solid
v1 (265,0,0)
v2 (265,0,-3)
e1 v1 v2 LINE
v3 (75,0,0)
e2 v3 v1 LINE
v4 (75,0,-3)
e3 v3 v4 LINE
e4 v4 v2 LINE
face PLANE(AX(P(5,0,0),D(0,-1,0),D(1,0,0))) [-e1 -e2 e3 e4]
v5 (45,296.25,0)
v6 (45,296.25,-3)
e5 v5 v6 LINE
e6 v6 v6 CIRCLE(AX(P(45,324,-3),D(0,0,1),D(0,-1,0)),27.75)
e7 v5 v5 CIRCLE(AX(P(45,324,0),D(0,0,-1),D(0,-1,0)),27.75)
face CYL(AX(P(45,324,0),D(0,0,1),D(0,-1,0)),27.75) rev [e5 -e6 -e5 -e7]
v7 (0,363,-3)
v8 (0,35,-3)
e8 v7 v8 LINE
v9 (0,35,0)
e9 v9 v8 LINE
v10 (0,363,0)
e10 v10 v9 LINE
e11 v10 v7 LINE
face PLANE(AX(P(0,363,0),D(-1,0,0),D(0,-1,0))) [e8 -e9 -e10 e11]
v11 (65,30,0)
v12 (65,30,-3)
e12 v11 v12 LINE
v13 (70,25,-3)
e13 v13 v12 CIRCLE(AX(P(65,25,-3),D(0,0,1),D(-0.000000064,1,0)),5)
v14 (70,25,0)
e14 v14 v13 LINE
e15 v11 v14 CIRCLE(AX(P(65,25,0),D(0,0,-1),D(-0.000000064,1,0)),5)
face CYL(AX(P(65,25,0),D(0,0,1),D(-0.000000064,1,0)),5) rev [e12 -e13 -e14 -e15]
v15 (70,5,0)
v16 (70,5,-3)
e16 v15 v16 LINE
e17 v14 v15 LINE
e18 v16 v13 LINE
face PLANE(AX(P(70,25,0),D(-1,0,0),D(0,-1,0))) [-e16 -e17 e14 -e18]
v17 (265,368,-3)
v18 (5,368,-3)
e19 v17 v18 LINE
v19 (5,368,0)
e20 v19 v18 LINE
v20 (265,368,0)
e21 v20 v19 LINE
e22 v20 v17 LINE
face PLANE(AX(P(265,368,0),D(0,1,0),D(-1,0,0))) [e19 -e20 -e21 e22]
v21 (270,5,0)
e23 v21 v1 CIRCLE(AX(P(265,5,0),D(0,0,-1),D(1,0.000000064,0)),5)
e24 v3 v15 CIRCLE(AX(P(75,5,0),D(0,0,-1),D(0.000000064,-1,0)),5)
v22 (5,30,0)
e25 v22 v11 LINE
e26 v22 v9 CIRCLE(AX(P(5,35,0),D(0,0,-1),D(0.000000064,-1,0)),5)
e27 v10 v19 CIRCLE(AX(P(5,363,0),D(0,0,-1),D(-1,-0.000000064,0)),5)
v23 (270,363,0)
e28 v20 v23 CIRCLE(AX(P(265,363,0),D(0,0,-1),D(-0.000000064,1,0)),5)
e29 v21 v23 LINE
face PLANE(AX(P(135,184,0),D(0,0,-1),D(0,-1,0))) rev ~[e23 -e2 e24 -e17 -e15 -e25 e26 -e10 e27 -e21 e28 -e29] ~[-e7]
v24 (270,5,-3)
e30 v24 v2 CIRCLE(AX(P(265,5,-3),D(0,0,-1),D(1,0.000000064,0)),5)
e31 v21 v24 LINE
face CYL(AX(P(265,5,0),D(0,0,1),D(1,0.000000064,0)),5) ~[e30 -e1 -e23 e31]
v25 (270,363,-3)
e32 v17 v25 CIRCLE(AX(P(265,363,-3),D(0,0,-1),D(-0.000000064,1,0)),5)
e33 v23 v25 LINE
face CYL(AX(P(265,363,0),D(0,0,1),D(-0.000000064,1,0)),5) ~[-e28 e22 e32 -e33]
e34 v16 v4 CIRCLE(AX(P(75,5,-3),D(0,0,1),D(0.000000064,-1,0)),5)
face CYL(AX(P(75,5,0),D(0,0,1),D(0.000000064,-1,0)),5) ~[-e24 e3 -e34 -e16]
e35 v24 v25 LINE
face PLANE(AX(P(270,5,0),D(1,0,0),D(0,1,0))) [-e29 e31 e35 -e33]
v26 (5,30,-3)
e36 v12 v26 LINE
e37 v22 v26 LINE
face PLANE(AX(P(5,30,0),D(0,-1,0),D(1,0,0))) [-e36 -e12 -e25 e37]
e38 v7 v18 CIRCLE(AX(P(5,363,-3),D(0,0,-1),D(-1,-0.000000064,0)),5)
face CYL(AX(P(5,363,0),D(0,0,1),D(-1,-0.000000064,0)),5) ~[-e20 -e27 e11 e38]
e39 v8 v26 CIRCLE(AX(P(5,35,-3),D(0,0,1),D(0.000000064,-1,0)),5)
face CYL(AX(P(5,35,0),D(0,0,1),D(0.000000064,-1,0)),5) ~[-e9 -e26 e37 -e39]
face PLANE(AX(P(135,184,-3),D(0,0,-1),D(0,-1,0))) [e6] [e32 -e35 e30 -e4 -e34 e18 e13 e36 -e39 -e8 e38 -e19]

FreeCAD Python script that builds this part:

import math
import FreeCAD as App
import Part
import Sketcher
from FreeCAD import Vector

doc = App.newDocument("Part")
body = doc.addObject("PartDesign::Body", "Body")

# Sketch on XY plane
sketch1 = doc.addObject("Sketcher::SketchObject", "Sketch")
body.addObject(sketch1)
sketch1.AttachmentSupport = (doc.XY_Plane, [""])
sketch1.MapMode = "FlatFace"
sketch1.addGeometry([
    Part.ArcOfCircle(Part.Circle(Vector(-179, -130, 0), Vector(0, 0, 1), 5), math.radians(180), math.radians(270)),  # 0
    Part.LineSegment(Vector(-179, -135, 0), Vector(179, -135, 0)),  # 1
    Part.ArcOfCircle(Part.Circle(Vector(179, -130, 0), Vector(0, 0, 1), 5), math.radians(-90), math.radians(0)),  # 2
    Part.LineSegment(Vector(184, -130, 0), Vector(184, 130, 0)),  # 3
    Part.ArcOfCircle(Part.Circle(Vector(179, 130, 0), Vector(0, 0, 1), 5), math.radians(0), math.radians(90)),  # 4
    Part.LineSegment(Vector(179, 135, 0), Vector(-179, 135, 0)),  # 5
    Part.ArcOfCircle(Part.Circle(Vector(-179, 130, 0), Vector(0, 0, 1), 5), math.radians(90), math.radians(180)),  # 6
    Part.LineSegment(Vector(-184, 130, 0), Vector(-184, -130, 0)),  # 7
], False)
sketch1.addConstraint([
    Sketcher.Constraint("Tangent", 0, 2, 1, 1),
    Sketcher.Constraint("Tangent", 1, 2, 2, 1),
    Sketcher.Constraint("Tangent", 2, 2, 3, 1),
    Sketcher.Constraint("Tangent", 3, 2, 4, 1),
    Sketcher.Constraint("Tangent", 4, 2, 5, 1),
    Sketcher.Constraint("Tangent", 5, 2, 6, 1),
    Sketcher.Constraint("Tangent", 6, 2, 7, 1),
    Sketcher.Constraint("Tangent", 7, 2, 0, 1),
    Sketcher.Constraint("Horizontal", 1),
    Sketcher.Constraint("Vertical", 3),
    Sketcher.Constraint("Horizontal", 5),
    Sketcher.Constraint("Vertical", 7),
    Sketcher.Constraint("Equal", 0, 2),
    Sketcher.Constraint("Equal", 2, 4),
    Sketcher.Constraint("Equal", 4, 6),
    Sketcher.Constraint("Symmetric", 0, 3, 4, 3, -1, 1),
    Sketcher.Constraint("Radius", 0, 5.0),
    Sketcher.Constraint("DistanceX", 1, 1, 1, 2, 358.0),
    Sketcher.Constraint("DistanceY", 3, 1, 3, 2, 260.0),
])
pad1 = doc.addObject("PartDesign::Pad", "Pad")
body.addObject(pad1)
pad1.Profile = sketch1
pad1.Length = 3

# Sketch on XY plane
sketch2 = doc.addObject("Sketcher::SketchObject", "Sketch001")
body.addObject(sketch2)
sketch2.AttachmentSupport = (doc.XY_Plane, [""])
sketch2.MapMode = "FlatFace"
sketch2.addGeometry(Part.Circle(Vector(-140, 90, 0), Vector(0, 0, 1), 28), False)
sketch2.addConstraint([
    Sketcher.Constraint("Diameter", 0, 55.5),
    Sketcher.Constraint("DistanceX", 0, 3, -1, 1, 140.0),
    Sketcher.Constraint("DistanceY", -1, 1, 0, 3, 90.0),
])
pocket1 = doc.addObject("PartDesign::Pocket", "Pocket")
body.addObject(pocket1)
pocket1.Profile = sketch2
pocket1.Type = "ThroughAll"
pocket1.Midplane = True

# Sketch on XY plane
sketch3 = doc.addObject("Sketcher::SketchObject", "Sketch002")
body.addObject(sketch3)
sketch3.AttachmentSupport = (doc.XY_Plane, [""])
sketch3.MapMode = "FlatFace"
sketch3.addGeometry([
    Part.LineSegment(Vector(184, 135, 0), Vector(149, 135, 0)),  # 0
    Part.ArcOfCircle(Part.Circle(Vector(149, 130, 0), Vector(0, 0, 1), 5), math.radians(0), math.radians(90)),  # 1
    Part.LineSegment(Vector(154, 130, 0), Vector(154, 70, 0)),  # 2
    Part.ArcOfCircle(Part.Circle(Vector(159, 70, 0), Vector(0, 0, 1), 5), math.radians(180), math.radians(270)),  # 3
    Part.LineSegment(Vector(159, 65, 0), Vector(179, 65, 0)),  # 4
    Part.ArcOfCircle(Part.Circle(Vector(179, 60, 0), Vector(0, 0, 1), 5), math.radians(0), math.radians(90)),  # 5
    Part.LineSegment(Vector(184, 60, 0), Vector(184, 135, 0)),  # 6
], False)
sketch3.addConstraint([
    Sketcher.Constraint("Tangent", 0, 2, 1, 2),
    Sketcher.Constraint("Tangent", 1, 1, 2, 1),
    Sketcher.Constraint("Tangent", 2, 2, 3, 1),
    Sketcher.Constraint("Tangent", 3, 2, 4, 1),
    Sketcher.Constraint("Tangent", 4, 2, 5, 2),
    Sketcher.Constraint("Tangent", 5, 1, 6, 1),
    Sketcher.Constraint("Coincident", 6, 2, 0, 1),
    Sketcher.Constraint("Horizontal", 0),
    Sketcher.Constraint("Vertical", 2),
    Sketcher.Constraint("Horizontal", 4),
    Sketcher.Constraint("Vertical", 6),
    Sketcher.Constraint("Equal", 1, 3),
    Sketcher.Constraint("Equal", 3, 5),
    Sketcher.Constraint("Radius", 1, 5.0),
    Sketcher.Constraint("DistanceX", 0, 2, 0, 1, 35.0),
    Sketcher.Constraint("DistanceY", 2, 2, 2, 1, 60.0),
    Sketcher.Constraint("DistanceX", -1, 1, 1, 3, 149.0),
    Sketcher.Constraint("DistanceY", -1, 1, 1, 3, 130.0),
])
pocket2 = doc.addObject("PartDesign::Pocket", "Pocket001")
body.addObject(pocket2)
pocket2.Profile = sketch3
pocket2.Type = "ThroughAll"
pocket2.Midplane = True
body2 = doc.addObject("PartDesign::Body", "Body001")
doc.recompute()

body.Placement = App.Placement(Vector(1341, 1390, 0), App.Rotation(Vector(0, 0, 1), 90))
boolean = doc.addObject("PartDesign::Boolean", "Boolean")
body2.addObject(boolean)
boolean.Type = "Fuse"
boolean.addObjects([body])
body3 = doc.addObject("PartDesign::Body", "Body002")
doc.recompute()

body2.Placement = App.Placement(Vector(-1206, 1574, 0), App.Rotation(Vector(1, 0, 0), 180))
boolean2 = doc.addObject("PartDesign::Boolean", "Boolean001")
body3.addObject(boolean2)
boolean2.Type = "Fuse"
boolean2.addObjects([body2])

doc.recompute()
